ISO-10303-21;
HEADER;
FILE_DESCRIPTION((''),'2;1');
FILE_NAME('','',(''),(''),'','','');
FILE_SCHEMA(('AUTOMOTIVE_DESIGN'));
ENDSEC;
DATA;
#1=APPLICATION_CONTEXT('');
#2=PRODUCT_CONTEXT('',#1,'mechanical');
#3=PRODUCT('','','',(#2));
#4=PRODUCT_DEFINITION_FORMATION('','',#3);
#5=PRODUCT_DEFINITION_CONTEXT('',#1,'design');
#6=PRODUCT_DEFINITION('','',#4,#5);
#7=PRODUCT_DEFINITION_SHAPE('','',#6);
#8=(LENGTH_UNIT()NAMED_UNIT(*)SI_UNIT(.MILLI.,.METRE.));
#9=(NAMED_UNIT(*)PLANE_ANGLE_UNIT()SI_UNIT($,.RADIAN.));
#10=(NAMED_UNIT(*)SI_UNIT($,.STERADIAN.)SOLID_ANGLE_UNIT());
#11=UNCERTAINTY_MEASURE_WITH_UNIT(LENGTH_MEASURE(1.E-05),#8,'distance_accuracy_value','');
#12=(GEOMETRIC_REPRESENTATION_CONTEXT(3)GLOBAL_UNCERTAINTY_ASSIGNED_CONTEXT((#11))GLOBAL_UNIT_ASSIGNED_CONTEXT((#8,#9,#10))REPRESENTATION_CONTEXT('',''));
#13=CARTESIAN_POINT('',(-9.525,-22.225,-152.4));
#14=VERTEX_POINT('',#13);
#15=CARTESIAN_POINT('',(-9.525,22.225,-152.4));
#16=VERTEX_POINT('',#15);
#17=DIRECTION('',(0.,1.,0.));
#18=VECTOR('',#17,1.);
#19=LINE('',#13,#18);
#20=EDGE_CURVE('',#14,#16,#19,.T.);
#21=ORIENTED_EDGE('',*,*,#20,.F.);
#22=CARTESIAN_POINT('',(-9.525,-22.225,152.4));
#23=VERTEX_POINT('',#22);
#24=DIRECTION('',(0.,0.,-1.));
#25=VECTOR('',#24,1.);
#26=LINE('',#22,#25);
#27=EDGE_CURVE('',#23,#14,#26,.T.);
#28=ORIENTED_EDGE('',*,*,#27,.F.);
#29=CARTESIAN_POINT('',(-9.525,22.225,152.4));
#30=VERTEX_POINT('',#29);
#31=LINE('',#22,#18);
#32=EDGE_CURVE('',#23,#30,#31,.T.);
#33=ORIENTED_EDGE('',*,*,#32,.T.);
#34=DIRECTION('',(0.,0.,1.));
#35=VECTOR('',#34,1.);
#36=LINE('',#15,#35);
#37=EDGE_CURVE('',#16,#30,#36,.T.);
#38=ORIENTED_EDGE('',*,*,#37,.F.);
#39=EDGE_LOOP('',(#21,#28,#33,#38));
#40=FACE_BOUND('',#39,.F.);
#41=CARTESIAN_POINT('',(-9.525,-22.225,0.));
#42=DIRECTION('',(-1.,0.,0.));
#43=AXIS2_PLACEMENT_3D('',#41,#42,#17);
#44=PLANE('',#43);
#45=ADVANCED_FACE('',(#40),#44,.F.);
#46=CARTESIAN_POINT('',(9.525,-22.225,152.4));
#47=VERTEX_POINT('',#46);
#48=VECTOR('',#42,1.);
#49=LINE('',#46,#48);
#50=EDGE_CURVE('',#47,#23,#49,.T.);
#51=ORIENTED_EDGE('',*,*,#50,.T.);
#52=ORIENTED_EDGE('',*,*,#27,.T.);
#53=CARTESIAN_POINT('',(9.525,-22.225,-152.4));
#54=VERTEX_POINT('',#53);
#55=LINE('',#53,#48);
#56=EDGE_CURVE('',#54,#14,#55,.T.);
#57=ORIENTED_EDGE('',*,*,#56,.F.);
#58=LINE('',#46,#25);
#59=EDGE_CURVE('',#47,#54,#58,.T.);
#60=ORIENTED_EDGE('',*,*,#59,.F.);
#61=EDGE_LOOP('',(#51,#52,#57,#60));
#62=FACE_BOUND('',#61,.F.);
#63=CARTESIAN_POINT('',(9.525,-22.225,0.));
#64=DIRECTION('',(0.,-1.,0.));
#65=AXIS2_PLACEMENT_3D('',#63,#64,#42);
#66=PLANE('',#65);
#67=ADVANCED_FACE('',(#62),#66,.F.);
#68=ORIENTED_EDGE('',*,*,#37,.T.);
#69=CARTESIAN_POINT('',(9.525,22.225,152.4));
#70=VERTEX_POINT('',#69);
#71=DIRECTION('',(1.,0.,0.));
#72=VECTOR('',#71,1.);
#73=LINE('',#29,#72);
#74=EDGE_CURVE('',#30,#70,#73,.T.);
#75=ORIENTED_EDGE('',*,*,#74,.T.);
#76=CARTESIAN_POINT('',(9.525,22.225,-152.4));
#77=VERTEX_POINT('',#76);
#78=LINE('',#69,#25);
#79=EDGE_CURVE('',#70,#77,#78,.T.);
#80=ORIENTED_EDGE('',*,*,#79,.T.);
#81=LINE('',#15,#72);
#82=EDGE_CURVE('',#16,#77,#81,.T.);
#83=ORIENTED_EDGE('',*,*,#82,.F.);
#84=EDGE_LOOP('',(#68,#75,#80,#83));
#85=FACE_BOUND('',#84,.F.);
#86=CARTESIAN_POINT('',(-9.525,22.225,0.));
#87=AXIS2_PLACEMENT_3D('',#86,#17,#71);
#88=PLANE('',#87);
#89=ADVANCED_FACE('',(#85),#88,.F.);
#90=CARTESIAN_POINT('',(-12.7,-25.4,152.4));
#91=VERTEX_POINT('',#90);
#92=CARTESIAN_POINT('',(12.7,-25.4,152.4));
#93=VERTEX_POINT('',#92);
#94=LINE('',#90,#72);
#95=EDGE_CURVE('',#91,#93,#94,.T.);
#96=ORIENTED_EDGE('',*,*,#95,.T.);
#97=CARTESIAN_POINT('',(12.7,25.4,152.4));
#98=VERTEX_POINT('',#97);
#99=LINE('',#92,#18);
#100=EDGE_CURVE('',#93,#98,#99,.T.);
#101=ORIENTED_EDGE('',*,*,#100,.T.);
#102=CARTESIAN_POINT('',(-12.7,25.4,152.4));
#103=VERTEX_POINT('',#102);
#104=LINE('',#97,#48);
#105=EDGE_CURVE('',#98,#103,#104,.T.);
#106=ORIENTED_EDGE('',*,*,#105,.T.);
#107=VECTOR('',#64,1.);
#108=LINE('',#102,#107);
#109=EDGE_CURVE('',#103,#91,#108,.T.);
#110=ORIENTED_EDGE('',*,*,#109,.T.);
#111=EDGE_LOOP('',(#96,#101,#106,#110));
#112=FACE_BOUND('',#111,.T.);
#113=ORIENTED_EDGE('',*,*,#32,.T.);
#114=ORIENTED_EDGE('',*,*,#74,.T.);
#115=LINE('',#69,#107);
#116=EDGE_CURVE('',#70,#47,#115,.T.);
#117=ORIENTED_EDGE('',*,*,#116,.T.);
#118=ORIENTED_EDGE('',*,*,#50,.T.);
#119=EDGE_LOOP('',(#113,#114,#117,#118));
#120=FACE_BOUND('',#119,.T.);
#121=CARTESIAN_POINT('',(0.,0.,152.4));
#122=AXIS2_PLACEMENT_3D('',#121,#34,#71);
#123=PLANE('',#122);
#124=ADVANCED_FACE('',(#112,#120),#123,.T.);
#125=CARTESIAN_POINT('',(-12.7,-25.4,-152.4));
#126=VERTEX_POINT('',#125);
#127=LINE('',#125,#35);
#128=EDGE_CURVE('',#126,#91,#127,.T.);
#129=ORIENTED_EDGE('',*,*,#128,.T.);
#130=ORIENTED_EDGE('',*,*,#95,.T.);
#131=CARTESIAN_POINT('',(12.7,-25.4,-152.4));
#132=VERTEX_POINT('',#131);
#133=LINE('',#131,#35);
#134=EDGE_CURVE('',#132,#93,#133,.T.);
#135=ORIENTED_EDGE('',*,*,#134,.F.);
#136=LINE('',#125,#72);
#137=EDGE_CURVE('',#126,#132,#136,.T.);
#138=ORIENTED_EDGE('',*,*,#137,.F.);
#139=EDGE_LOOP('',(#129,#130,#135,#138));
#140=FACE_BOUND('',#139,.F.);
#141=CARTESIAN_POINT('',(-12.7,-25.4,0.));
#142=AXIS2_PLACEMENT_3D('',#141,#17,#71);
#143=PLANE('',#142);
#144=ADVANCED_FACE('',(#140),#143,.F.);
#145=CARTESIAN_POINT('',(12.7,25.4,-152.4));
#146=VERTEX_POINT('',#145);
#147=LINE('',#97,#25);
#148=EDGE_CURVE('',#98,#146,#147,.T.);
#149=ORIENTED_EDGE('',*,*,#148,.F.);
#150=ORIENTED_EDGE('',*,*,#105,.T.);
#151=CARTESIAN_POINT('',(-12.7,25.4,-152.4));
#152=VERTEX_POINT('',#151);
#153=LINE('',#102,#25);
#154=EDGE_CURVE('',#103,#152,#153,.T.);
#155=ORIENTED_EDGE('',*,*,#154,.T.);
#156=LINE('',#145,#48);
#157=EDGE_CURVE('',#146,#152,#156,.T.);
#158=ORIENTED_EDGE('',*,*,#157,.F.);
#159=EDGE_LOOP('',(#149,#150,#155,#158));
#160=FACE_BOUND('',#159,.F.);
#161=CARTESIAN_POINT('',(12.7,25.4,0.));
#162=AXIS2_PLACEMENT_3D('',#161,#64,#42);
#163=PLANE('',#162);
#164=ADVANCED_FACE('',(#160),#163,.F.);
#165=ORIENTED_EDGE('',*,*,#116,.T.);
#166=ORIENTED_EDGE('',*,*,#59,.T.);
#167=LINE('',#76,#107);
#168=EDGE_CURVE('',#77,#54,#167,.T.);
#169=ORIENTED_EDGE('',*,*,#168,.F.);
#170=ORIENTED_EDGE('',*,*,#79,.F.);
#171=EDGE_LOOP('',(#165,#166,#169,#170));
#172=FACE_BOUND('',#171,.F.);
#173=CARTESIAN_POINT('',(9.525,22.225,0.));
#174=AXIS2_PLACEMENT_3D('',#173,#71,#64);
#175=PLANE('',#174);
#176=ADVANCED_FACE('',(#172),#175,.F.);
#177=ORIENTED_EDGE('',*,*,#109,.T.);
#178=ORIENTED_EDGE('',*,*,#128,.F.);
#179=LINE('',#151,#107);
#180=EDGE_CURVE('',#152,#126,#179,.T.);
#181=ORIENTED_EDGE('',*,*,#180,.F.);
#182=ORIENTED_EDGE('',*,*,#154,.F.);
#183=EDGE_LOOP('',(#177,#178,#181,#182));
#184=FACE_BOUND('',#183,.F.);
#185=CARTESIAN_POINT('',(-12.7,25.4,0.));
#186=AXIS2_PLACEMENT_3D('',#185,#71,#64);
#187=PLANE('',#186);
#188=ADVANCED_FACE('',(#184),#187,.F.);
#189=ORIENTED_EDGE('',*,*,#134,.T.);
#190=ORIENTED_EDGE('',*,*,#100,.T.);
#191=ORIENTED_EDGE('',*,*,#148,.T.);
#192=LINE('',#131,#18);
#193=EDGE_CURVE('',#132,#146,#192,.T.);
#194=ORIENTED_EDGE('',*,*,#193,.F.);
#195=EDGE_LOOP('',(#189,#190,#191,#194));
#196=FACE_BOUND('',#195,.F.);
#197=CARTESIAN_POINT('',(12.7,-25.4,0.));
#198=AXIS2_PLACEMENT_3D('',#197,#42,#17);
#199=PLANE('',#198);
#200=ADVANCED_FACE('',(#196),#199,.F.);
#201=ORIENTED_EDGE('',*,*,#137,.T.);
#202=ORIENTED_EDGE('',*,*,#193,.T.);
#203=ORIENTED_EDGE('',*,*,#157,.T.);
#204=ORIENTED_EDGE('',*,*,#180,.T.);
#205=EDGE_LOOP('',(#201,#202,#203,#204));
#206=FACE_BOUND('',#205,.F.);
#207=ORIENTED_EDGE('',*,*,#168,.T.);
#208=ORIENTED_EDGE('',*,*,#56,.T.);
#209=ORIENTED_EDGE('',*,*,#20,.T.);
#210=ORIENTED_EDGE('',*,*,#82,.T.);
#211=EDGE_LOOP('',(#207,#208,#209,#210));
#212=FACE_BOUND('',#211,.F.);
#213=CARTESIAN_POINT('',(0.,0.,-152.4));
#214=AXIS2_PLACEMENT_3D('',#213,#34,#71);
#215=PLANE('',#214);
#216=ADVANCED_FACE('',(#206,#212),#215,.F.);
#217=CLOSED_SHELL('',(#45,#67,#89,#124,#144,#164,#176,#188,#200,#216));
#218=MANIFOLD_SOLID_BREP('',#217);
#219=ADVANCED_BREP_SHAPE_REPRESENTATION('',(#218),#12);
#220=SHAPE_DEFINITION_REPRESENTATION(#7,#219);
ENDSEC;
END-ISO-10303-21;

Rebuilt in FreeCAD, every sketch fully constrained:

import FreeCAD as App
import Part
import Sketcher
Q = App.Units.Quantity

doc = App.newDocument("Part")
body = doc.addObject("PartDesign::Body", "Body")

# Sketch on XY plane
sketch1 = doc.addObject("Sketcher::SketchObject", "Sketch")
body.addObject(sketch1)
sketch1.AttachmentSupport = (doc.XY_Plane, [""])
sketch1.MapMode = "FlatFace"
sketch1.addGeometry([
    Part.LineSegment(App.Vector(-13, 25, 0), App.Vector(-13, -25, 0)),  # 0
    Part.LineSegment(App.Vector(-13, -25, 0), App.Vector(13, -25, 0)),  # 1
    Part.LineSegment(App.Vector(13, -25, 0), App.Vector(13, 25, 0)),  # 2
    Part.LineSegment(App.Vector(13, 25, 0), App.Vector(-13, 25, 0)),  # 3
    Part.LineSegment(App.Vector(-10, -22, 0), App.Vector(-10, 22, 0)),  # 4
    Part.LineSegment(App.Vector(-10, 22, 0), App.Vector(10, 22, 0)),  # 5
    Part.LineSegment(App.Vector(10, 22, 0), App.Vector(10, -22, 0)),  # 6
    Part.LineSegment(App.Vector(10, -22, 0), App.Vector(-10, -22, 0)),  # 7
], False)
sketch1.addConstraint([
    Sketcher.Constraint("Coincident", 0, 2, 1, 1),
    Sketcher.Constraint("Coincident", 1, 2, 2, 1),
    Sketcher.Constraint("Coincident", 2, 2, 3, 1),
    Sketcher.Constraint("Coincident", 3, 2, 0, 1),
    Sketcher.Constraint("Coincident", 4, 2, 5, 1),
    Sketcher.Constraint("Coincident", 5, 2, 6, 1),
    Sketcher.Constraint("Coincident", 6, 2, 7, 1),
    Sketcher.Constraint("Coincident", 7, 2, 4, 1),
    Sketcher.Constraint("Vertical", 0),
    Sketcher.Constraint("Horizontal", 1),
    Sketcher.Constraint("Vertical", 2),
    Sketcher.Constraint("Horizontal", 3),
    Sketcher.Constraint("Vertical", 4),
    Sketcher.Constraint("Horizontal", 5),
    Sketcher.Constraint("Vertical", 6),
    Sketcher.Constraint("Horizontal", 7),
    Sketcher.Constraint("Symmetric", 0, 2, 2, 2, -1, 1),
    Sketcher.Constraint("Symmetric", 4, 2, 6, 2, -1, 1),
    Sketcher.Constraint("DistanceX", 1, 1, 1, 2, Q("1 in")),
    Sketcher.Constraint("DistanceY", 0, 2, 0, 1, Q("2 in")),
    Sketcher.Constraint("DistanceX", 3, 2, 4, 2, Q("0.125 in")),
    Sketcher.Constraint("DistanceY", 4, 2, 3, 2, Q("0.125 in")),
])
pad1 = doc.addObject("PartDesign::Pad", "Pad")
body.addObject(pad1)
pad1.Profile = sketch1
pad1.Length = Q("12 in")
pad1.Midplane = True

doc.recompute()
